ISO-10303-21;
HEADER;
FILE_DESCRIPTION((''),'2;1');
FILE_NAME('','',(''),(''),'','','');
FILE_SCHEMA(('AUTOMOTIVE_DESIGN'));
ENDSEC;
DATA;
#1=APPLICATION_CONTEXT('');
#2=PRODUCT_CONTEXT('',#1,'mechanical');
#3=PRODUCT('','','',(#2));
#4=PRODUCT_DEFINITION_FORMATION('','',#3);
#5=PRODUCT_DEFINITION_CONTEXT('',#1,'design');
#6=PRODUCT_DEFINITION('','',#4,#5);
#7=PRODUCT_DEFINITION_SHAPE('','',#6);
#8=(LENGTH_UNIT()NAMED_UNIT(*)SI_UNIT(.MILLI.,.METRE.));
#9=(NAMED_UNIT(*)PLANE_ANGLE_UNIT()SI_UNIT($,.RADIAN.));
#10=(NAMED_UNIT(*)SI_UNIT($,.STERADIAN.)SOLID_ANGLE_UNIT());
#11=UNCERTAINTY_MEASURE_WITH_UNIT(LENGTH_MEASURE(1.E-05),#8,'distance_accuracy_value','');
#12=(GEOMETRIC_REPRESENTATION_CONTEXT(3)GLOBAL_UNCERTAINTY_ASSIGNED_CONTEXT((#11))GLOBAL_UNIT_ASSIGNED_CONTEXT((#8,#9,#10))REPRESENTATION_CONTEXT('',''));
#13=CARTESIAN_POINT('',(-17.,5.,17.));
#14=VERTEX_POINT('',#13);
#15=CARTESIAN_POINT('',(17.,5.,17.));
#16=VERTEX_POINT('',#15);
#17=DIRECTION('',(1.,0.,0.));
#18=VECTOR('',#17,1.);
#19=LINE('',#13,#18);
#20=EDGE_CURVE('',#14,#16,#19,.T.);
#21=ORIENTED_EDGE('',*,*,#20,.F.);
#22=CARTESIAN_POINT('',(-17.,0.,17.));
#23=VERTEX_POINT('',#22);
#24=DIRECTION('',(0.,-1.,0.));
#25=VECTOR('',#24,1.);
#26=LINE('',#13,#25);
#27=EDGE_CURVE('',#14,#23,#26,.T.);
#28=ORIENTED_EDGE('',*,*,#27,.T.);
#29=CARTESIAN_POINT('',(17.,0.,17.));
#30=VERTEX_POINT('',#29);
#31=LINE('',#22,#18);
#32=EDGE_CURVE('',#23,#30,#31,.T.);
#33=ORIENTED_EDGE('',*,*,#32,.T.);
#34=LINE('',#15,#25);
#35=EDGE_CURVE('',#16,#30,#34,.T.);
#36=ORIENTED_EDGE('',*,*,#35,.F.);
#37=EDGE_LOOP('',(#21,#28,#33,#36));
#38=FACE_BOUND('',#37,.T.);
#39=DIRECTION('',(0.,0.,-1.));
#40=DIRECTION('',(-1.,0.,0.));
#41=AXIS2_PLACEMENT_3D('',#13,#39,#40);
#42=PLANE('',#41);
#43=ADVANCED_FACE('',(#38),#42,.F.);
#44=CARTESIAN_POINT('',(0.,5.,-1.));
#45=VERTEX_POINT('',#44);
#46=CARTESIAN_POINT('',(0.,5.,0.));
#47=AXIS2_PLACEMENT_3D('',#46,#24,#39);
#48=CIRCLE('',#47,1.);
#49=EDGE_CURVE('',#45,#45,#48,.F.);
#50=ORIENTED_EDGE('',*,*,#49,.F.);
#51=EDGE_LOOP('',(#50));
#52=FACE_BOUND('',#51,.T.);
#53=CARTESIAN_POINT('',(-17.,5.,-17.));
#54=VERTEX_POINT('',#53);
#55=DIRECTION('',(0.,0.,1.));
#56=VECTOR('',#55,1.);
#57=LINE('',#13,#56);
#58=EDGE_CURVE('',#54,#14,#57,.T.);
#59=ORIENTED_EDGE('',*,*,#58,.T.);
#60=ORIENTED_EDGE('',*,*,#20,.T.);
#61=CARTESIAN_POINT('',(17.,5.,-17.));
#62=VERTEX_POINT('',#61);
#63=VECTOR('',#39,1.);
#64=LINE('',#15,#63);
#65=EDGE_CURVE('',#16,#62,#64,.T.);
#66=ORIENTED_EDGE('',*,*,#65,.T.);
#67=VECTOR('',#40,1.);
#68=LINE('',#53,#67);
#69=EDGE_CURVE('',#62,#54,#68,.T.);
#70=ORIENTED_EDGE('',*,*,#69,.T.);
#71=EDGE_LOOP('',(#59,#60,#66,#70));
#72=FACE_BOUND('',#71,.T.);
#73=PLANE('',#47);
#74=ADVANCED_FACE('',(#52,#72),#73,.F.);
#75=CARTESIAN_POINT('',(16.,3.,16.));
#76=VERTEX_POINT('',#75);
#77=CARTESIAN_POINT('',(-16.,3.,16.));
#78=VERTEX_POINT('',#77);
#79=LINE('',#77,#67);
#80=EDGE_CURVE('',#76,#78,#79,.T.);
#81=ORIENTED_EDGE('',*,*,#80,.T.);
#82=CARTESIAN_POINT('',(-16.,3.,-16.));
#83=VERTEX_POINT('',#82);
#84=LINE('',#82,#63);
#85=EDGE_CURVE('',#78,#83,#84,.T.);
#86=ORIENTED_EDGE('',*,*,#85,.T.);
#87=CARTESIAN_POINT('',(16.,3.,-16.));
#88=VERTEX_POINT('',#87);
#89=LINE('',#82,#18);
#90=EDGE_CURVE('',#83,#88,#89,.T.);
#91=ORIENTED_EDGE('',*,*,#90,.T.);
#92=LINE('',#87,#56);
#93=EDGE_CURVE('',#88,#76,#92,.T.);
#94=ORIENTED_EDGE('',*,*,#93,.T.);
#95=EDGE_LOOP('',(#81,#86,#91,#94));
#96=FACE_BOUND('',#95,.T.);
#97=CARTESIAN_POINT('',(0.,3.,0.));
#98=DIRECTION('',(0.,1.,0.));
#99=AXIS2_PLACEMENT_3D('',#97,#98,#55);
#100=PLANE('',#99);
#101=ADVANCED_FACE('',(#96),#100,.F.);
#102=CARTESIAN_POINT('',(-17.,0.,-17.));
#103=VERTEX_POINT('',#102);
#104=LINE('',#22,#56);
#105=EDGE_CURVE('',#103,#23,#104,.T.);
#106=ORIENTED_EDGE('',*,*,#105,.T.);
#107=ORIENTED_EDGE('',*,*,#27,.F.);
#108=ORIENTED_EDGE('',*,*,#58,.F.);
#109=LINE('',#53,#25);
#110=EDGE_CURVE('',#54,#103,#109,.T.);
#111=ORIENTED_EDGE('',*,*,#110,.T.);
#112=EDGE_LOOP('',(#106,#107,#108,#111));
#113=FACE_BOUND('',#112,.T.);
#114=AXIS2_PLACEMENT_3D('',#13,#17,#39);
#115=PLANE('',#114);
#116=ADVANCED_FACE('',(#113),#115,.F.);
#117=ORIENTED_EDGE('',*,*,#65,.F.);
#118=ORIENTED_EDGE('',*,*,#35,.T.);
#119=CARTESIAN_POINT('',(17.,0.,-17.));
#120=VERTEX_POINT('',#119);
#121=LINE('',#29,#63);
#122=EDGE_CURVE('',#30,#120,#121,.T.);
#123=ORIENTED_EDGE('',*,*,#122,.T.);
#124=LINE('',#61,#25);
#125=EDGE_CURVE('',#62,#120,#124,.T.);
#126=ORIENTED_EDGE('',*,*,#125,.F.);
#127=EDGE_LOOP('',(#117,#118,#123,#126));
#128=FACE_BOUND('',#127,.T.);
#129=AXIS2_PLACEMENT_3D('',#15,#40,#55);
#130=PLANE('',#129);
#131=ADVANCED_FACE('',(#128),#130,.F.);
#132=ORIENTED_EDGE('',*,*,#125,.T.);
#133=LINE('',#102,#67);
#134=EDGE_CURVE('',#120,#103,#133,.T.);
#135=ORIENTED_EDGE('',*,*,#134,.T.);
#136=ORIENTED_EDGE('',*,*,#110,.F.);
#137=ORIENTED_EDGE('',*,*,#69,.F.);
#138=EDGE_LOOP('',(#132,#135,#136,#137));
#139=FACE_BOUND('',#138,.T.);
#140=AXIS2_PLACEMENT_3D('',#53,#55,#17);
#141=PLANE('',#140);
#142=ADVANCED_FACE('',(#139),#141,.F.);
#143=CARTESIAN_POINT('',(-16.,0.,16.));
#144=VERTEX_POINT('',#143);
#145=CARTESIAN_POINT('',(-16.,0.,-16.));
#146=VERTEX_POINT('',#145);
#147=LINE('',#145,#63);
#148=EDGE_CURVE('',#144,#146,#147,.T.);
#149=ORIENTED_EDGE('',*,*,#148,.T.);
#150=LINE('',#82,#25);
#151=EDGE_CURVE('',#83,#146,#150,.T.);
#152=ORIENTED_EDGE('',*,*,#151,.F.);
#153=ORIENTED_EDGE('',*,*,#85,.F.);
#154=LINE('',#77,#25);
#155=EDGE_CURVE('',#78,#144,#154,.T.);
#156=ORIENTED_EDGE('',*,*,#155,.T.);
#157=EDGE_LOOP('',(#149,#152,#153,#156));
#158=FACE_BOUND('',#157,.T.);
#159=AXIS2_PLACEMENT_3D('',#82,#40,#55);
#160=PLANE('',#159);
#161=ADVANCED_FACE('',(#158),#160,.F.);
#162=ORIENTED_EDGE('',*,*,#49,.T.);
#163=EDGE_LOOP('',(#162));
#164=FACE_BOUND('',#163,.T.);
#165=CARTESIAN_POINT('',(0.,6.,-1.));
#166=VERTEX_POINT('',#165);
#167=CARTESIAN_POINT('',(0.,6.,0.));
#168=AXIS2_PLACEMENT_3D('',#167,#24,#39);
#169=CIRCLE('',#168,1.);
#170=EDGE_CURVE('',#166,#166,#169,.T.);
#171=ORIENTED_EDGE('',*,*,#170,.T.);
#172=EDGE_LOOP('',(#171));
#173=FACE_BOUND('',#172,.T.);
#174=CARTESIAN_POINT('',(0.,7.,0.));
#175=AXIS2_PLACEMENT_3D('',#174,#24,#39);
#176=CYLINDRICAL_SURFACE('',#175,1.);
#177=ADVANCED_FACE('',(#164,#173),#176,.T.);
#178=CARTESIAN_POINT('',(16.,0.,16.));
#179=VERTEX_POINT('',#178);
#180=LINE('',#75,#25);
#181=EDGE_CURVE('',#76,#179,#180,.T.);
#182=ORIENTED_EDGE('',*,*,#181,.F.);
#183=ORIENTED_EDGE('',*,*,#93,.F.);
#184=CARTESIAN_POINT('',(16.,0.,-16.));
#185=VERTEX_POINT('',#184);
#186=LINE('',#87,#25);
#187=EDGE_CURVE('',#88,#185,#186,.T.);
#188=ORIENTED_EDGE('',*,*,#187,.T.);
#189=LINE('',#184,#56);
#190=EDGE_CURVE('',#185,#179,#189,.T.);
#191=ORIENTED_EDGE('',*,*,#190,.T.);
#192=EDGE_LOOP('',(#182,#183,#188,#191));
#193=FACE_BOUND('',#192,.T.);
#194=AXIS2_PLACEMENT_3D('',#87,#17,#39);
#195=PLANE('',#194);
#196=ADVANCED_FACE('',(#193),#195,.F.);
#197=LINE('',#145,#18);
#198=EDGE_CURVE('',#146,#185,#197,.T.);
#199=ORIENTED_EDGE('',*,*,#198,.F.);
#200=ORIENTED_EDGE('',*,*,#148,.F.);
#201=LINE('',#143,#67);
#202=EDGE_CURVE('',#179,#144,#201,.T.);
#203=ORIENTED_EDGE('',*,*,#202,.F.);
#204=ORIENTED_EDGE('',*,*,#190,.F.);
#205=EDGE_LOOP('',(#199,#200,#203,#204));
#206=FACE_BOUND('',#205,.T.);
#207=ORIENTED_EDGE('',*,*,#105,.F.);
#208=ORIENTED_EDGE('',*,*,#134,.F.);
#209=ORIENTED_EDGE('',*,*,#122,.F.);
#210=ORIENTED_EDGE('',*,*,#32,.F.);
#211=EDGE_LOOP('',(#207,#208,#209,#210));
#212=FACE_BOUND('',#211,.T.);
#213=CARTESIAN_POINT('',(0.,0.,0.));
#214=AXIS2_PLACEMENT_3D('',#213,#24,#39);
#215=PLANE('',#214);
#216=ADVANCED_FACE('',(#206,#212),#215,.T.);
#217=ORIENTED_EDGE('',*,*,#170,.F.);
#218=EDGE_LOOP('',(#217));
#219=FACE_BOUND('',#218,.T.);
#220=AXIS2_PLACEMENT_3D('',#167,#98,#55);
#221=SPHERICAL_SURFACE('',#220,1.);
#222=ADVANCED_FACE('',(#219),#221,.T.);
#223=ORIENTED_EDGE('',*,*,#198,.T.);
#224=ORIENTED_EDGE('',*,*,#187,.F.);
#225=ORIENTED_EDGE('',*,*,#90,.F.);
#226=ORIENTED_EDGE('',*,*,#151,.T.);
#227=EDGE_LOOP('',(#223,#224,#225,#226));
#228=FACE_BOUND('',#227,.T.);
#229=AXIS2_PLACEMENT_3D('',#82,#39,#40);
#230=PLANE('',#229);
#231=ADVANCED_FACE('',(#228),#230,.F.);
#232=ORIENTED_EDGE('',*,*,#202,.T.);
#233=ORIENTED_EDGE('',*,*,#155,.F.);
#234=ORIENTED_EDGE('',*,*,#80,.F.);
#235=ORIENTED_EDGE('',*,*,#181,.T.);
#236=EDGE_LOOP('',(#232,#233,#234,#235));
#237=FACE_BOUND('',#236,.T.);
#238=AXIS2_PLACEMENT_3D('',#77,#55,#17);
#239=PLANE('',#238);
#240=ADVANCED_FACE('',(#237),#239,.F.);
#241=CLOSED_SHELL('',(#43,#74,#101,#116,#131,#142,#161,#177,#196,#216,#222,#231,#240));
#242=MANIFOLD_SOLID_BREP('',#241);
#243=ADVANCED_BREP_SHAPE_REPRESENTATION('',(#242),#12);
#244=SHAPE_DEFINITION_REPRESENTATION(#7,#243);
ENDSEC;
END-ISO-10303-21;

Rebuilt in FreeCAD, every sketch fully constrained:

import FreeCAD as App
import Part
import Sketcher

V = App.Vector


def edges_at(feature, points):
    """Names of the edges that pass closest to the given points."""
    edges = feature.Shape.Edges
    near = lambda p: min(range(len(edges)), key=lambda i: edges[i].distToShape(Part.Vertex(*p))[0])
    return sorted({f"Edge{near(p) + 1}" for p in points})

doc = App.newDocument("Part")
body = doc.addObject("PartDesign::Body", "Body")

# Sketch on XZ plane
sketch1 = body.newObject("Sketcher::SketchObject", "Sketch")
sketch1.AttachmentSupport = (doc.getObject("XZ_Plane"), [""])
sketch1.MapMode = "FlatFace"
sketch1.addGeometry(Part.LineSegment(V(-17, -17, 0), V(-17, 17, 0)), False)
sketch1.addGeometry(Part.LineSegment(V(-17, 17, 0), V(17, 17, 0)), False)
sketch1.addGeometry(Part.LineSegment(V(17, 17, 0), V(17, -17, 0)), False)
sketch1.addGeometry(Part.LineSegment(V(17, -17, 0), V(-17, -17, 0)), False)
sketch1.addConstraint(Sketcher.Constraint("Coincident", 0, 2, 1, 1))
sketch1.addConstraint(Sketcher.Constraint("Coincident", 1, 2, 2, 1))
sketch1.addConstraint(Sketcher.Constraint("Coincident", 2, 2, 3, 1))
sketch1.addConstraint(Sketcher.Constraint("Coincident", 3, 2, 0, 1))
sketch1.addConstraint(Sketcher.Constraint("Vertical", 0))
sketch1.addConstraint(Sketcher.Constraint("Horizontal", 1))
sketch1.addConstraint(Sketcher.Constraint("Vertical", 2))
sketch1.addConstraint(Sketcher.Constraint("Horizontal", 3))
sketch1.addConstraint(Sketcher.Constraint("Symmetric", 0, 2, 2, 2, -1, 1))
sketch1.addConstraint(Sketcher.Constraint("Equal", 3, 0))
sketch1.addConstraint(Sketcher.Constraint("DistanceX", 1, 1, 1, 2, 34.0))
pad1 = body.newObject("PartDesign::Pad", "Pad")
pad1.Profile = sketch1
pad1.Length = 5
pad1.Reversed = True

# Sketch on XZ plane
sketch2 = body.newObject("Sketcher::SketchObject", "Sketch001")
sketch2.AttachmentSupport = (doc.getObject("XZ_Plane"), [""])
sketch2.MapMode = "FlatFace"
sketch2.addGeometry(Part.LineSegment(V(-16, 16, 0), V(-16, -16, 0)), False)
sketch2.addGeometry(Part.LineSegment(V(-16, -16, 0), V(16, -16, 0)), False)
sketch2.addGeometry(Part.LineSegment(V(16, -16, 0), V(16, 16, 0)), False)
sketch2.addGeometry(Part.LineSegment(V(16, 16, 0), V(-16, 16, 0)), False)
sketch2.addConstraint(Sketcher.Constraint("Coincident", 0, 2, 1, 1))
sketch2.addConstraint(Sketcher.Constraint("Coincident", 1, 2, 2, 1))
sketch2.addConstraint(Sketcher.Constraint("Coincident", 2, 2, 3, 1))
sketch2.addConstraint(Sketcher.Constraint("Coincident", 3, 2, 0, 1))
sketch2.addConstraint(Sketcher.Constraint("Vertical", 0))
sketch2.addConstraint(Sketcher.Constraint("Horizontal", 1))
sketch2.addConstraint(Sketcher.Constraint("Vertical", 2))
sketch2.addConstraint(Sketcher.Constraint("Horizontal", 3))
sketch2.addConstraint(Sketcher.Constraint("Symmetric", 0, 2, 2, 2, -1, 1))
sketch2.addConstraint(Sketcher.Constraint("Equal", 3, 0))
sketch2.addConstraint(Sketcher.Constraint("DistanceX", 1, 1, 1, 2, 32.0))
pocket1 = body.newObject("PartDesign::Pocket", "Pocket")
pocket1.Profile = sketch2
pocket1.Length = 3

# Sketch on XZ plane
sketch3 = body.newObject("Sketcher::SketchObject", "Sketch002")
sketch3.AttachmentSupport = (doc.getObject("XZ_Plane"), [""])
sketch3.MapMode = "FlatFace"
sketch3.AttachmentOffset = App.Placement(V(0, 0, -5), App.Rotation())
sketch3.addGeometry(Part.Circle(V(0, 0, 0), V(0, 0, 1), 1), False)
sketch3.addConstraint(Sketcher.Constraint("Coincident", 0, 3, -1, 1))
sketch3.addConstraint(Sketcher.Constraint("Diameter", 0, 2.0))
pad2 = body.newObject("PartDesign::Pad", "Pad001")
pad2.Profile = sketch3
pad2.Length = 2
pad2.Reversed = True
doc.recompute()

fillet = body.newObject("PartDesign::Fillet", "Fillet")
fillet.Base = (pad2, edges_at(pad2, [(-1, 7, 0)]))
fillet.Radius = 1

doc.recompute()
